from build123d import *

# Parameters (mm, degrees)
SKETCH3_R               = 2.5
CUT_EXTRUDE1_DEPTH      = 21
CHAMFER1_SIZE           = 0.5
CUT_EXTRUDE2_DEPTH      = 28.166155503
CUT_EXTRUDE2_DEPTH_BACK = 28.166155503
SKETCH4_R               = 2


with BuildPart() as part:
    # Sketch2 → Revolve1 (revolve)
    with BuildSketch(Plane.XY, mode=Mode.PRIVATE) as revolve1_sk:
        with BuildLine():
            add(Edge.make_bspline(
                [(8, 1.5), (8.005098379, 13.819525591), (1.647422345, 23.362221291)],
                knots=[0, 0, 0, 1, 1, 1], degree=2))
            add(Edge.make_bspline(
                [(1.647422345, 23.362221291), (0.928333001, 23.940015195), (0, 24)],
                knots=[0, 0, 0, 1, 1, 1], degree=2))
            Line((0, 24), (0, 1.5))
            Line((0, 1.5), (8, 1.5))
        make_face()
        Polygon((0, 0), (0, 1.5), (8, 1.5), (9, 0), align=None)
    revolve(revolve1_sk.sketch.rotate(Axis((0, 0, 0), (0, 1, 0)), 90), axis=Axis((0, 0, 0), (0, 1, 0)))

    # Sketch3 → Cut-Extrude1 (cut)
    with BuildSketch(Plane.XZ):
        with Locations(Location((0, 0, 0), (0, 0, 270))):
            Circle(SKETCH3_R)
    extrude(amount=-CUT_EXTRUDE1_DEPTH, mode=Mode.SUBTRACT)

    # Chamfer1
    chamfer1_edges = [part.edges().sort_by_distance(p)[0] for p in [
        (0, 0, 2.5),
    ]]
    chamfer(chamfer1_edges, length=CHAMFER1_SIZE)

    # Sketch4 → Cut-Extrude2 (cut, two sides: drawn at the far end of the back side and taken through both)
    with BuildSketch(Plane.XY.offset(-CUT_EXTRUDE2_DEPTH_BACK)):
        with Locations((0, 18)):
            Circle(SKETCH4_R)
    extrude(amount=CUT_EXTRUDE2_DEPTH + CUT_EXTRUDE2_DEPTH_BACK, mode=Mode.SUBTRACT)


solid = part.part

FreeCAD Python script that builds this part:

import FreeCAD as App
import Part
import Sketcher


def edges_at(feature, points):
    """Names of the edges that pass closest to the given points."""
    edges = feature.Shape.Edges
    near = lambda p: min(range(len(edges)), key=lambda i: edges[i].distToShape(Part.Vertex(*p))[0])
    return sorted({f"Edge{near(p) + 1}" for p in points})

doc = App.newDocument("Part")
body = doc.addObject("PartDesign::Body", "Body")

sketch1 = doc.addObject("Sketcher::SketchObject", "Sketch")
body.addObject(sketch1)
sketch1.AttachmentSupport = (doc.XY_Plane, [""])
sketch1.MapMode = "FlatFace"
sketch1.addGeometry(Part.BSplineCurve([App.Vector(8, 1.5, 0), App.Vector(8.005098, 13.819526, 0), App.Vector(1.647422, 23.362221, 0)], [3, 3], [0, 1], False, 2, [1, 1, 1], False), False)
sketch1.addGeometry(Part.BSplineCurve([App.Vector(1.647422, 23.362221, 0), App.Vector(0.928333, 23.940015, 0), App.Vector(0, 24, 0)], [3, 3], [0, 1], False, 2, [1, 1, 1], False), False)
sketch1.addGeometry(Part.LineSegment(App.Vector(0, 24, 0), App.Vector(0, 0, 0)), False)
sketch1.addGeometry(Part.LineSegment(App.Vector(0, 0, 0), App.Vector(9, 0, 0)), False)
sketch1.addGeometry(Part.LineSegment(App.Vector(9, 0, 0), App.Vector(8, 1.5, 0)), False)
sketch1.addConstraint(Sketcher.Constraint("Block", 0))
sketch1.addConstraint(Sketcher.Constraint("Block", 1))
sketch1.addConstraint(Sketcher.Constraint("Coincident", 1, 2, 2, 1))
sketch1.addConstraint(Sketcher.Constraint("Coincident", 2, 2, 3, 1))
sketch1.addConstraint(Sketcher.Constraint("Coincident", 3, 2, 4, 1))
sketch1.addConstraint(Sketcher.Constraint("Coincident", 4, 2, 0, 1))
sketch1.addConstraint(Sketcher.Constraint("Vertical", 2))
sketch1.addConstraint(Sketcher.Constraint("Horizontal", 3))
sketch1.addConstraint(Sketcher.Constraint("PointOnObject", 3, 2, -1))
sketch1.addConstraint(Sketcher.Constraint("DistanceX", 3, 1, 3, 2, 9.0))
revolution = doc.addObject("PartDesign::Revolution", "Revolution")
body.addObject(revolution)
revolution.Profile = sketch1
revolution.ReferenceAxis = (sketch1, ["V_Axis"])
revolution.Angle = 360

sketch2 = doc.addObject("Sketcher::SketchObject", "Sketch001")
body.addObject(sketch2)
sketch2.AttachmentSupport = (doc.XZ_Plane, [""])
sketch2.MapMode = "FlatFace"
sketch2.addGeometry(Part.Circle(App.Vector(0, 0, 0), App.Vector(0, 0, 1), 2.5), False)
sketch2.addConstraint(Sketcher.Constraint("Coincident", 0, 3, -1, 1))
sketch2.addConstraint(Sketcher.Constraint("Diameter", 0, 5.0))
pocket1 = doc.addObject("PartDesign::Pocket", "Pocket")
body.addObject(pocket1)
pocket1.Profile = sketch2
pocket1.Length = 21
doc.recompute()

chamfer = doc.addObject("PartDesign::Chamfer", "Chamfer")
body.addObject(chamfer)
chamfer.Base = (pocket1, edges_at(pocket1, [(0, 0, 2.5)]))
chamfer.Size = 0.5

sketch3 = doc.addObject("Sketcher::SketchObject", "Sketch002")
body.addObject(sketch3)
sketch3.AttachmentSupport = (doc.XY_Plane, [""])
sketch3.MapMode = "FlatFace"
sketch3.addGeometry(Part.Circle(App.Vector(0, 18, 0), App.Vector(0, 0, 1), 2), False)
sketch3.addConstraint(Sketcher.Constraint("PointOnObject", 0, 3, -2))
sketch3.addConstraint(Sketcher.Constraint("Diameter", 0, 4.0))
sketch3.addConstraint(Sketcher.Constraint("DistanceY", -1, 1, 0, 3, 18.0))
pocket2 = doc.addObject("PartDesign::Pocket", "Pocket001")
body.addObject(pocket2)
pocket2.Profile = sketch3
pocket2.Type = "ThroughAll"
pocket2.Midplane = True

doc.recompute()
